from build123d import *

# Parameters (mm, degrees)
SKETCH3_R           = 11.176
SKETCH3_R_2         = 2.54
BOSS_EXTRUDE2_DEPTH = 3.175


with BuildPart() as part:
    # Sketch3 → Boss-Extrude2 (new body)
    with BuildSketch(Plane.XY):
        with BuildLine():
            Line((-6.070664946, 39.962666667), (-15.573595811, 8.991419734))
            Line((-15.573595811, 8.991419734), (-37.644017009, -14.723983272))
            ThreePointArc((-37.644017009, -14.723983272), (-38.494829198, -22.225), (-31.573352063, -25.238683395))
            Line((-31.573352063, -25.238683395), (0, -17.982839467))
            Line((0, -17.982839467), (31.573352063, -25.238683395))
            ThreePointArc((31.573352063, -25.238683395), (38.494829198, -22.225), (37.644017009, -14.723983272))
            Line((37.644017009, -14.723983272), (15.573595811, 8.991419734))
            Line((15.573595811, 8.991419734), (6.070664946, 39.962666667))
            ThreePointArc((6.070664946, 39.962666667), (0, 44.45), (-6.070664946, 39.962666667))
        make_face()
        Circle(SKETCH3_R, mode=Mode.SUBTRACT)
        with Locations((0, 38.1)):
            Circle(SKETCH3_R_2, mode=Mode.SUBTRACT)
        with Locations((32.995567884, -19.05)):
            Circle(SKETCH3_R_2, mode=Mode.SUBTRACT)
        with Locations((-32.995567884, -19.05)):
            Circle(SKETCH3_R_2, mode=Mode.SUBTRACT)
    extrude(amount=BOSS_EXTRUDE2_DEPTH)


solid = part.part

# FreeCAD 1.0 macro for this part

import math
import FreeCAD as App
import Part
import Sketcher
Q = App.Units.Quantity

doc = App.newDocument("Part")
params = doc.addObject("Spreadsheet::Sheet", "Params")
for row, (alias, value) in enumerate([
    ("sketch1_diameter", "0.2 in"),
    ("sketch1_diameter2", "0.88 in"),
    ("sketch1_radius", "0.25 in"),
    ("pad1_length", "0.125 in"),
], start=1):
    params.set(f"A{row}", alias)
    params.set(f"B{row}", "=" + value)
    params.setAlias(f"B{row}", alias)

body = doc.addObject("PartDesign::Body", "Body")

# Sketch on XY plane
sketch1 = body.newObject("Sketcher::SketchObject", "Sketch")
sketch1.AttachmentSupport = (doc.getObject("XY_Plane"), [""])
sketch1.MapMode = "FlatFace"
sketch1.addGeometry([
    Part.LineSegment(App.Vector(-6.1, 40, 0), App.Vector(-15.6, 9, 0)),  # 0
    Part.LineSegment(App.Vector(-15.6, 9, 0), App.Vector(-37.6, -14.7, 0)),  # 1
    Part.ArcOfCircle(Part.Circle(App.Vector(-33, -19.1, 0), App.Vector(0, 0, 1), 6.3), math.radians(137), math.radians(283)),  # 2
    Part.LineSegment(App.Vector(-31.6, -25.2, 0), App.Vector(0, -18, 0)),  # 3
    Part.LineSegment(App.Vector(0, -18, 0), App.Vector(31.6, -25.2, 0)),  # 4
    Part.ArcOfCircle(Part.Circle(App.Vector(33, -19.1, 0), App.Vector(0, 0, 1), 6.3), math.radians(-103), math.radians(43)),  # 5
    Part.LineSegment(App.Vector(37.6, -14.7, 0), App.Vector(15.6, 9, 0)),  # 6
    Part.LineSegment(App.Vector(15.6, 9, 0), App.Vector(6.1, 40, 0)),  # 7
    Part.ArcOfCircle(Part.Circle(App.Vector(0, 38.1, 0), App.Vector(0, 0, 1), 6.3), math.radians(17), math.radians(163)),  # 8
    Part.Circle(App.Vector(-33, -19.1, 0), App.Vector(0, 0, 1), 2.5),  # 9
    Part.Circle(App.Vector(33, -19.1, 0), App.Vector(0, 0, 1), 2.5),  # 10
    Part.Circle(App.Vector(0, 0, 0), App.Vector(0, 0, 1), 11.2),  # 11
    Part.Circle(App.Vector(0, 38.1, 0), App.Vector(0, 0, 1), 2.5),  # 12
], False)
sketch1.addConstraint([
    Sketcher.Constraint("Coincident", 0, 2, 1, 1),
    Sketcher.Constraint("Tangent", 1, 2, 2, 1),
    Sketcher.Constraint("Tangent", 2, 2, 3, 1),
    Sketcher.Constraint("Coincident", 3, 2, 4, 1),
    Sketcher.Constraint("Tangent", 4, 2, 5, 1),
    Sketcher.Constraint("Tangent", 5, 2, 6, 1),
    Sketcher.Constraint("Coincident", 6, 2, 7, 1),
    Sketcher.Constraint("Tangent", 7, 2, 8, 1),
    Sketcher.Constraint("Tangent", 8, 2, 0, 1),
    Sketcher.Constraint("Coincident", 11, 3, -1, 1),
    Sketcher.Constraint("Coincident", 9, 3, 2, 3),
    Sketcher.Constraint("Coincident", 10, 3, 5, 3),
    Sketcher.Constraint("Coincident", 12, 3, 8, 3),
    Sketcher.Constraint("Equal", 2, 5),
    Sketcher.Constraint("Equal", 5, 8),
    Sketcher.Constraint("Equal", 9, 10),
    Sketcher.Constraint("Equal", 10, 12),
    Sketcher.Constraint("Symmetric", 2, 3, 5, 3, -2),
    Sketcher.Constraint("Symmetric", 0, 2, 6, 2, -2),
    Sketcher.Constraint("PointOnObject", 8, 3, -2),
    Sketcher.Constraint("PointOnObject", 3, 2, -2),
    Sketcher.Constraint("Equal", 0, 1),
    Sketcher.Constraint("Equal", 1, 3),
    Sketcher.Constraint("Diameter", 9, Q("0.2 in")),
    Sketcher.Constraint("Diameter", 11, Q("0.88 in")),
    Sketcher.Constraint("Radius", 2, Q("0.25 in")),
    Sketcher.Constraint("DistanceY", -1, 1, 8, 3, Q("1.5 in")),
    Sketcher.Constraint("DistanceY", 2, 3, -1, 1, Q("0.75 in")),
    Sketcher.Constraint("DistanceY", 2, 2, 1, 2, 10.5147),
    Sketcher.Constraint("DistanceY", -1, 1, 0, 2, 8.99142),
])
sketch1.setExpression("Constraints[23]", "Params.sketch1_diameter")
sketch1.setExpression("Constraints[24]", "Params.sketch1_diameter2")
sketch1.setExpression("Constraints[25]", "Params.sketch1_radius")
pad1 = body.newObject("PartDesign::Pad", "Pad")
pad1.Profile = sketch1
pad1.setExpression("Length", "Params.pad1_length")

doc.recompute()
